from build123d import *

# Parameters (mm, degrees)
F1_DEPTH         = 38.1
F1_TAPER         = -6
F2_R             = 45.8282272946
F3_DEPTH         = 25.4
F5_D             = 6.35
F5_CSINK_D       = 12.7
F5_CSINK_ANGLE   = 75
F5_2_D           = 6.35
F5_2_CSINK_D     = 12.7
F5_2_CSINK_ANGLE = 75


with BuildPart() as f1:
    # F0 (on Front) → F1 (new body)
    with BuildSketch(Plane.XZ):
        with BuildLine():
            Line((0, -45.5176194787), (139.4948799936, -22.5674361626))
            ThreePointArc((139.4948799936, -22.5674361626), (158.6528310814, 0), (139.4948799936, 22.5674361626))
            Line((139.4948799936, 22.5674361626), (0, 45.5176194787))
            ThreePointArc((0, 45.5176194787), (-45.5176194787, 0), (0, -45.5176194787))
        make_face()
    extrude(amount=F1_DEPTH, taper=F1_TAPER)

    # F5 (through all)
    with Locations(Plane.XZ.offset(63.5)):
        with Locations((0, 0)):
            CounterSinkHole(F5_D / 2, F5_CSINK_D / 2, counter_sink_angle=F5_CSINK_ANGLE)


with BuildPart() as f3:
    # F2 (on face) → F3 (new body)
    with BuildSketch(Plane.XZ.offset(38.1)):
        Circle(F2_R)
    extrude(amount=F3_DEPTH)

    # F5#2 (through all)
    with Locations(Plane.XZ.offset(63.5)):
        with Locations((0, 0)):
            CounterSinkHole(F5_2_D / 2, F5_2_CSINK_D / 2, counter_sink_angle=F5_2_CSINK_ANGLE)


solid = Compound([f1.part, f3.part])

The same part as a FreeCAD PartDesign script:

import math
import FreeCAD as App
import Part
import Sketcher
Q = App.Units.Quantity

doc = App.newDocument("Part")
body = doc.addObject("PartDesign::Body", "Body")

sketch1 = body.newObject("Sketcher::SketchObject", "Sketch")
sketch1.AttachmentSupport = (doc.getObject("XZ_Plane"), [""])
sketch1.MapMode = "FlatFace"
sketch1.addGeometry(Part.LineSegment(App.Vector(0, -45.517619, 0), App.Vector(139.49488, -22.567436, 0)), False)
sketch1.addGeometry(Part.ArcOfCircle(Part.Circle(App.Vector(135.782007, 0, 0), App.Vector(0, 0, 1), 22.870824), math.radians(-80.657196), math.radians(80.657196)), False)
sketch1.addGeometry(Part.LineSegment(App.Vector(139.49488, 22.567436, 0), App.Vector(0, 45.517619, 0)), False)
sketch1.addGeometry(Part.ArcOfCircle(Part.Circle(App.Vector(0, 0, 0), App.Vector(0, 0, 1), 45.517619), math.radians(90), math.radians(270)), False)
sketch1.addConstraint(Sketcher.Constraint("Tangent", 0, 2, 1, 1))
sketch1.addConstraint(Sketcher.Constraint("Tangent", 1, 2, 2, 1))
sketch1.addConstraint(Sketcher.Constraint("Coincident", 2, 2, 3, 1))
sketch1.addConstraint(Sketcher.Constraint("Coincident", 3, 2, 0, 1))
sketch1.addConstraint(Sketcher.Constraint("Coincident", 3, 3, -1, 1))
sketch1.addConstraint(Sketcher.Constraint("Symmetric", 0, 2, 1, 2, -1))
sketch1.addConstraint(Sketcher.Constraint("PointOnObject", 2, 2, -2))
sketch1.addConstraint(Sketcher.Constraint("Radius", 3, 45.517619))
sketch1.addConstraint(Sketcher.Constraint("Radius", 1, 22.870824))
sketch1.addConstraint(Sketcher.Constraint("DistanceX", -1, 1, 0, 2, 139.49488))
pad1 = body.newObject("PartDesign::Pad", "Pad")
pad1.Profile = sketch1
pad1.Length = Q("1.5 in")
pad1.TaperAngle = 6

sketch2 = body.newObject("Sketcher::SketchObject", "Sketch001")
sketch2.AttachmentSupport = (doc.getObject("XZ_Plane"), [""])
sketch2.MapMode = "FlatFace"
sketch2.AttachmentOffset = App.Placement(App.Vector(0, 0, 2.5 * 25.4), App.Rotation())
sketch2.addGeometry(Part.Circle(App.Vector(0, 0, 0), App.Vector(0, 0, 1), 3.175), False)
sketch2.addConstraint(Sketcher.Constraint("Coincident", 0, 3, -1, 1))
sketch2.addConstraint(Sketcher.Constraint("Diameter", 0, Q("0.25 in")))
doc.recompute()
hole = body.newObject("PartDesign::Hole", "Hole")
hole.Profile = sketch2
hole.ThreadType = "None"
hole.Diameter = Q("0.25 in")
hole.DepthType = "ThroughAll"
hole.HoleCutType = "Countersink"
hole.HoleCutDiameter = Q("0.5 in")
hole.HoleCutCountersinkAngle = 75
body2 = doc.addObject("PartDesign::Body", "Body001")

sketch3 = body2.newObject("Sketcher::SketchObject", "Sketch002")
sketch3.AttachmentSupport = (doc.getObject("XZ_Plane001"), [""])
sketch3.MapMode = "FlatFace"
sketch3.AttachmentOffset = App.Placement(App.Vector(0, 0, 1.5 * 25.4), App.Rotation())
sketch3.addGeometry(Part.Circle(App.Vector(0, 0, 0), App.Vector(0, 0, 1), 45.828227), False)
sketch3.addConstraint(Sketcher.Constraint("Coincident", 0, 3, -1, 1))
sketch3.addConstraint(Sketcher.Constraint("Diameter", 0, 91.656455))
pad2 = body2.newObject("PartDesign::Pad", "Pad001")
pad2.Profile = sketch3
pad2.Length = Q("1 in")

sketch4 = body2.newObject("Sketcher::SketchObject", "Sketch003")
sketch4.AttachmentSupport = (doc.getObject("XZ_Plane001"), [""])
sketch4.MapMode = "FlatFace"
sketch4.AttachmentOffset = App.Placement(App.Vector(0, 0, 2.5 * 25.4), App.Rotation())
sketch4.addGeometry(Part.Circle(App.Vector(0, 0, 0), App.Vector(0, 0, 1), 3.175), False)
sketch4.addConstraint(Sketcher.Constraint("Coincident", 0, 3, -1, 1))
sketch4.addConstraint(Sketcher.Constraint("Diameter", 0, Q("0.25 in")))
doc.recompute()
hole2 = body2.newObject("PartDesign::Hole", "Hole001")
hole2.Profile = sketch4
hole2.ThreadType = "None"
hole2.Diameter = Q("0.25 in")
hole2.DepthType = "ThroughAll"
hole2.HoleCutType = "Countersink"
hole2.HoleCutDiameter = Q("0.5 in")
hole2.HoleCutCountersinkAngle = 75

doc.recompute()
